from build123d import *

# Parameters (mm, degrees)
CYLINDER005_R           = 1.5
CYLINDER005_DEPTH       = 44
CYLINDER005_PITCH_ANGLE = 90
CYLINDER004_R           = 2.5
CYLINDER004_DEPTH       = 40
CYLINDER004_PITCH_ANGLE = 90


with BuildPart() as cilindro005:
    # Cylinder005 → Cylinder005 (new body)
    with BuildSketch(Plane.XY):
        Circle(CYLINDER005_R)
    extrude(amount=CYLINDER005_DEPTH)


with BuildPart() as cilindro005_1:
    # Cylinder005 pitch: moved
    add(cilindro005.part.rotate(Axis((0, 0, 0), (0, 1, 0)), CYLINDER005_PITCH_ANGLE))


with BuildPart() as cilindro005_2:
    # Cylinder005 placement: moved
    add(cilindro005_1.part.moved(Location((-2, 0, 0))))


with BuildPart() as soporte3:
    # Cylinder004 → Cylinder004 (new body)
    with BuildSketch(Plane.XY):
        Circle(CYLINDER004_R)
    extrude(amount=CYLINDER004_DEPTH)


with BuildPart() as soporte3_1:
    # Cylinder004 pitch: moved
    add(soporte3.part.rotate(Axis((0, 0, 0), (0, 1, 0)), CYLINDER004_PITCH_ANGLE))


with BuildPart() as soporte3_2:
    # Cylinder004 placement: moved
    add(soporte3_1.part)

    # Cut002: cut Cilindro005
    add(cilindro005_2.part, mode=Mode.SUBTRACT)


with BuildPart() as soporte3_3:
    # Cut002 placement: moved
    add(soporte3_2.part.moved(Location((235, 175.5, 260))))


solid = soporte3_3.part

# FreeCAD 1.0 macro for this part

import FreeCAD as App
import Part
import Sketcher
from FreeCAD import Vector
Q = App.Units.Quantity

doc = App.newDocument("Part")
body = doc.addObject("PartDesign::Body", "Body")

# Sketch on XY plane
sketch1 = body.newObject("Sketcher::SketchObject", "Sketch")
sketch1.AttachmentSupport = (doc.getObject("XY_Plane"), [""])
sketch1.MapMode = "FlatFace"
sketch1.addGeometry(Part.Circle(Vector(0, 0, 0), Vector(0, 0, 1), 1.5), False)
sketch1.addConstraint([
    Sketcher.Constraint("Coincident", 0, 3, -1, 1),
    Sketcher.Constraint("Diameter", 0, Q("3 mm")),
])
pad1 = body.newObject("PartDesign::Pad", "Pad")
pad1.Profile = sketch1
pad1.Length = 44
body2 = doc.addObject("PartDesign::Body", "Body001")
doc.recompute()

body.Placement = App.Placement(Vector(0, 0, 0), App.Rotation(Vector(0, 1, 0), 90))
boolean = body2.newObject("PartDesign::Boolean", "Boolean")
boolean.Type = "Fuse"
boolean.addObjects([body])
body3 = doc.addObject("PartDesign::Body", "Body002")
doc.recompute()

body2.Placement = App.Placement(Vector(-2, 0, 0), App.Rotation(Vector(0, 0, 1), 0))
boolean2 = body3.newObject("PartDesign::Boolean", "Boolean001")
boolean2.Type = "Fuse"
boolean2.addObjects([body2])
body4 = doc.addObject("PartDesign::Body", "Body003")

# Sketch on XY plane
sketch2 = body4.newObject("Sketcher::SketchObject", "Sketch001")
sketch2.AttachmentSupport = (doc.getObject("XY_Plane003"), [""])
sketch2.MapMode = "FlatFace"
sketch2.addGeometry(Part.Circle(Vector(0, 0, 0), Vector(0, 0, 1), 2.5), False)
sketch2.addConstraint([
    Sketcher.Constraint("Coincident", 0, 3, -1, 1),
    Sketcher.Constraint("Diameter", 0, Q("5 mm")),
])
pad2 = body4.newObject("PartDesign::Pad", "Pad001")
pad2.Profile = sketch2
pad2.Length = 40
body5 = doc.addObject("PartDesign::Body", "Body004")
doc.recompute()

body4.Placement = App.Placement(Vector(0, 0, 0), App.Rotation(Vector(0, 1, 0), 90))
boolean3 = body5.newObject("PartDesign::Boolean", "Boolean002")
boolean3.Type = "Fuse"
boolean3.addObjects([body4])
doc.recompute()

boolean4 = body5.newObject("PartDesign::Boolean", "Boolean003")
boolean4.Type = "Cut"
boolean4.addObjects([body3])
body6 = doc.addObject("PartDesign::Body", "Body005")
doc.recompute()

body5.Placement = App.Placement(Vector(235, 175.5, 260), App.Rotation(Vector(0, 0, 1), 0))
boolean5 = body6.newObject("PartDesign::Boolean", "Boolean004")
boolean5.Type = "Fuse"
boolean5.addObjects([body5])

doc.recompute()
